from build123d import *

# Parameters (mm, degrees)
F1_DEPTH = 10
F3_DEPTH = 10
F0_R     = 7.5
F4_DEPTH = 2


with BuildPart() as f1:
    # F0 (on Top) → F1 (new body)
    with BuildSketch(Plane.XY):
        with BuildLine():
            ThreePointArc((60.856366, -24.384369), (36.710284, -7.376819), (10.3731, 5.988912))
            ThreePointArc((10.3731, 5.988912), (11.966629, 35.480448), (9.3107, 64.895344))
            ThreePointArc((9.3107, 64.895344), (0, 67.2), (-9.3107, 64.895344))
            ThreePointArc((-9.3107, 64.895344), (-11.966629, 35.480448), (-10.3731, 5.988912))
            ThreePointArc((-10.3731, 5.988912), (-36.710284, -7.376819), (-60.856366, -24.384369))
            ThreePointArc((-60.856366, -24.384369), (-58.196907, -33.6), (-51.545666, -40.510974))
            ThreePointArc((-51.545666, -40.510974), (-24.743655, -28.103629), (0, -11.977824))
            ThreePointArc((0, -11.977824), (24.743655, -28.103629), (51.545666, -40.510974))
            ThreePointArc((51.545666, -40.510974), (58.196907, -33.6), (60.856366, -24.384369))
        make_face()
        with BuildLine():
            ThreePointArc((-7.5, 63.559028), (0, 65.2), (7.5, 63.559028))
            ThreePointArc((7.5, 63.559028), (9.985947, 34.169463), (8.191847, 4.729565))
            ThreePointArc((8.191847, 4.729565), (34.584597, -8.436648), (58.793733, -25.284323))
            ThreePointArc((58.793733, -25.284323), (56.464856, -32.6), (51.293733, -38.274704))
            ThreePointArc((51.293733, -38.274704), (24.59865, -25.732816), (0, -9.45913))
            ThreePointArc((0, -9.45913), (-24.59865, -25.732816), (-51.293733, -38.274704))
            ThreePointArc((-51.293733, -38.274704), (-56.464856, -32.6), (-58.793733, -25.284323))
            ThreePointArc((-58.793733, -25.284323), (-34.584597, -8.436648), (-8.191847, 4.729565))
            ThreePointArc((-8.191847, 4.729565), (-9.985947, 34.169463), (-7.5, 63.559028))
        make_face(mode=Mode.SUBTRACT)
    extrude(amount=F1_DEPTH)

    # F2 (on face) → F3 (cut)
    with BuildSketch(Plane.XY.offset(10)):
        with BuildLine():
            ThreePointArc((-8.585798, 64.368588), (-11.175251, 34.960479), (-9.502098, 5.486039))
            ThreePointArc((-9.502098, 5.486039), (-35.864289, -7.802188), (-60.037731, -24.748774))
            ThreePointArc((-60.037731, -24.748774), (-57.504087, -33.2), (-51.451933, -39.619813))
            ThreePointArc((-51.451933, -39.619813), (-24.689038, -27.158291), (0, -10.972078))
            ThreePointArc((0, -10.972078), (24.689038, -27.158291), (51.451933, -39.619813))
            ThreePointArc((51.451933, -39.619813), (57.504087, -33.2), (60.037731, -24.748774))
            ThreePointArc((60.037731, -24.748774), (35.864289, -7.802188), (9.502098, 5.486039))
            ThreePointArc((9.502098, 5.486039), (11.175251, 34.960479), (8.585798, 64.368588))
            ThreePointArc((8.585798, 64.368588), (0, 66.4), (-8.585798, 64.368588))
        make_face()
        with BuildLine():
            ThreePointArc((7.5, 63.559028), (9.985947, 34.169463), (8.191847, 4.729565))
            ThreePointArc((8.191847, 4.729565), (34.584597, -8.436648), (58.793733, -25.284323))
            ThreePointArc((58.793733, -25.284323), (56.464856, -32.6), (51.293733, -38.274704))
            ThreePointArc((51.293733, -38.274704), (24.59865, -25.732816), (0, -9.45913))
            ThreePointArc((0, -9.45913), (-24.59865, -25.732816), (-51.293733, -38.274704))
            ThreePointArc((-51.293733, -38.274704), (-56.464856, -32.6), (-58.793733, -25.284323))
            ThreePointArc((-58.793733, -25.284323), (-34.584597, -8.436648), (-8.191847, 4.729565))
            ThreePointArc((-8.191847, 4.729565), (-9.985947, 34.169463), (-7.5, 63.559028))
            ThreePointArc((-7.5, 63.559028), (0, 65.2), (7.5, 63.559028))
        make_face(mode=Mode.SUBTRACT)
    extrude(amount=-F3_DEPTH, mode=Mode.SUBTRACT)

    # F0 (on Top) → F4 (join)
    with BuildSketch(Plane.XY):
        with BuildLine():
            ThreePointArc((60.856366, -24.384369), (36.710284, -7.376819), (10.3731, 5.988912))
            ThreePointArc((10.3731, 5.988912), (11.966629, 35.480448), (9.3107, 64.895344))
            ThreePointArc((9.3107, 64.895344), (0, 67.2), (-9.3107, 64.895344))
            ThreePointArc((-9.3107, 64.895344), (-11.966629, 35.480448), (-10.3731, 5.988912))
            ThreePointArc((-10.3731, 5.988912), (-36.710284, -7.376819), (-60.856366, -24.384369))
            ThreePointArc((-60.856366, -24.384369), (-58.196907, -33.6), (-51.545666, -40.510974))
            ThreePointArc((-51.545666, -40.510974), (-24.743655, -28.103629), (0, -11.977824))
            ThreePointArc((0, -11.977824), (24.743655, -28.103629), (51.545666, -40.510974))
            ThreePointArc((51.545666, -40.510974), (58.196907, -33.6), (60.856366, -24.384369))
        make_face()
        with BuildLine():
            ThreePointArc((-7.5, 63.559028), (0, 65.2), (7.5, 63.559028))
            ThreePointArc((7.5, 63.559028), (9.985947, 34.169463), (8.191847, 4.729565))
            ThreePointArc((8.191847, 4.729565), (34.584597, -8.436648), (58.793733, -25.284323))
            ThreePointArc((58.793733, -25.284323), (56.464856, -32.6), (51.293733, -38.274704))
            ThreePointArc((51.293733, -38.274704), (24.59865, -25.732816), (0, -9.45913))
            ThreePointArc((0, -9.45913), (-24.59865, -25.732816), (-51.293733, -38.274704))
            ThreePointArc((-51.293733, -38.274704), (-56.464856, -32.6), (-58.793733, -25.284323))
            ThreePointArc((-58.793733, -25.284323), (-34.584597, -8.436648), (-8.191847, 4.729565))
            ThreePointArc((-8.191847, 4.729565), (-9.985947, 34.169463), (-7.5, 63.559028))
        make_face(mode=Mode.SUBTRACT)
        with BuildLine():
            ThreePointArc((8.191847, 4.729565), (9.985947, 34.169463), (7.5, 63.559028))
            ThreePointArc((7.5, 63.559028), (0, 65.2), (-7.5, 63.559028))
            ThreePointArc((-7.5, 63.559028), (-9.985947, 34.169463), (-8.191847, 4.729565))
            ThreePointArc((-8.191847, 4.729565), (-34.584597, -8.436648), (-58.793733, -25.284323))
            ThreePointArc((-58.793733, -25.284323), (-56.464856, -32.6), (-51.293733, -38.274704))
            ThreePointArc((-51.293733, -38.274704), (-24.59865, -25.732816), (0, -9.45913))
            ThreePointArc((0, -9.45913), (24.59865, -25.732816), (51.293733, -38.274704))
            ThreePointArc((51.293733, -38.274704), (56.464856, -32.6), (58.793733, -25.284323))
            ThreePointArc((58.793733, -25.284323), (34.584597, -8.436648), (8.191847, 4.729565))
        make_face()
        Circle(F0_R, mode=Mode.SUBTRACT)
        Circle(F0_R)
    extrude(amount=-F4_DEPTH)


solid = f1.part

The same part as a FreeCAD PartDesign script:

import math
import FreeCAD as App
import Part
import Sketcher
from FreeCAD import Vector
Q = App.Units.Quantity

doc = App.newDocument("Part")
body = doc.addObject("PartDesign::Body", "Body")

# Sketch on XY plane
sketch1 = body.newObject("Sketcher::SketchObject", "Sketch")
sketch1.AttachmentSupport = (doc.getObject("XY_Plane"), [""])
sketch1.MapMode = "FlatFace"
sketch1.addGeometry(Part.ArcOfCircle(Part.Circle(Vector(-69.096872, -183.238321, 0), Vector(0, 0, 1), 205.237477), math.radians(50.714521), math.radians(67.219001)), False)
sketch1.addGeometry(Part.ArcOfCircle(Part.Circle(Vector(-193.237519, 31.779513, 0), Vector(0, 0, 1), 205.237519), math.radians(-7.218999), math.radians(9.285478)), False)
sketch1.addGeometry(Part.ArcOfCircle(Part.Circle(Vector(0, 47.240281, 0), Vector(0, 0, 1), 19.959719), math.radians(62.194309), math.radians(117.805691)), False)
sketch1.addGeometry(Part.ArcOfCircle(Part.Circle(Vector(193.237519, 31.779513, 0), Vector(0, 0, 1), 205.237519), math.radians(170.714522), math.radians(187.218999)), False)
sketch1.addGeometry(Part.ArcOfCircle(Part.Circle(Vector(69.096872, -183.238321, 0), Vector(0, 0, 1), 205.237477), math.radians(112.780999), math.radians(129.285479)), False)
sketch1.addGeometry(Part.ArcOfCircle(Part.Circle(Vector(-40.911288, -23.620142, 0), Vector(0, 0, 1), 19.959714), math.radians(-177.805697), math.radians(-122.194302)), False)
sketch1.addGeometry(Part.ArcOfCircle(Part.Circle(Vector(-124.140602, 151.458804, 0), Vector(0, 0, 1), 205.237473), math.radians(-69.28548), math.radians(-52.780999)), False)
sketch1.addGeometry(Part.ArcOfCircle(Part.Circle(Vector(124.140602, 151.458804, 0), Vector(0, 0, 1), 205.237473), math.radians(-127.219001), math.radians(-110.71452)), False)
sketch1.addGeometry(Part.ArcOfCircle(Part.Circle(Vector(40.911288, -23.620142, 0), Vector(0, 0, 1), 19.959714), math.radians(-57.805698), math.radians(-2.194303)), False)
sketch1.addGeometry(Part.ArcOfCircle(Part.Circle(Vector(193.237553, 31.779512, 0), Vector(0, 0, 1), 203.237553), math.radians(171.003951), math.radians(187.64849)), False)
sketch1.addGeometry(Part.ArcOfCircle(Part.Circle(Vector(0, 47.240282, 0), Vector(0, 0, 1), 17.959718), math.radians(65.316766), math.radians(114.683234)), False)
sketch1.addGeometry(Part.ArcOfCircle(Part.Circle(Vector(-193.237553, 31.779512, 0), Vector(0, 0, 1), 203.237553), math.radians(-7.64849), math.radians(8.996049)), False)
sketch1.addGeometry(Part.ArcOfCircle(Part.Circle(Vector(-69.096918, -183.238401, 0), Vector(0, 0, 1), 203.237569), math.radians(51.003952), math.radians(67.64849)), False)
sketch1.addGeometry(Part.ArcOfCircle(Part.Circle(Vector(40.911283, -23.62014, 0), Vector(0, 0, 1), 17.959719), math.radians(-54.683232), math.radians(-5.316768)), False)
sketch1.addGeometry(Part.ArcOfCircle(Part.Circle(Vector(124.140607, 151.458817, 0), Vector(0, 0, 1), 203.237487), math.radians(-127.648492), math.radians(-111.003948)), False)
sketch1.addGeometry(Part.ArcOfCircle(Part.Circle(Vector(-124.140607, 151.458817, 0), Vector(0, 0, 1), 203.237487), math.radians(-68.996052), math.radians(-52.351508)), False)
sketch1.addGeometry(Part.ArcOfCircle(Part.Circle(Vector(-40.911283, -23.62014, 0), Vector(0, 0, 1), 17.959719), math.radians(-174.683232), math.radians(-125.316768)), False)
sketch1.addGeometry(Part.ArcOfCircle(Part.Circle(Vector(69.096918, -183.238401, 0), Vector(0, 0, 1), 203.237569), math.radians(112.35151), math.radians(128.996048)), False)
sketch1.addConstraint(Sketcher.Constraint("Coincident", 0, 2, 1, 1))
sketch1.addConstraint(Sketcher.Constraint("Coincident", 1, 2, 2, 1))
sketch1.addConstraint(Sketcher.Constraint("Coincident", 2, 2, 3, 1))
sketch1.addConstraint(Sketcher.Constraint("Coincident", 3, 2, 4, 1))
sketch1.addConstraint(Sketcher.Constraint("Coincident", 4, 2, 5, 1))
sketch1.addConstraint(Sketcher.Constraint("Coincident", 5, 2, 6, 1))
sketch1.addConstraint(Sketcher.Constraint("Coincident", 6, 2, 7, 1))
sketch1.addConstraint(Sketcher.Constraint("Coincident", 7, 2, 8, 1))
sketch1.addConstraint(Sketcher.Constraint("Coincident", 8, 2, 0, 1))
sketch1.addConstraint(Sketcher.Constraint("Coincident", 9, 1, 10, 2))
sketch1.addConstraint(Sketcher.Constraint("Coincident", 10, 1, 11, 2))
sketch1.addConstraint(Sketcher.Constraint("Coincident", 11, 1, 12, 2))
sketch1.addConstraint(Sketcher.Constraint("Coincident", 12, 1, 13, 2))
sketch1.addConstraint(Sketcher.Constraint("Coincident", 13, 1, 14, 2))
sketch1.addConstraint(Sketcher.Constraint("Coincident", 14, 1, 15, 2))
sketch1.addConstraint(Sketcher.Constraint("Coincident", 15, 1, 16, 2))
sketch1.addConstraint(Sketcher.Constraint("Coincident", 16, 1, 17, 2))
sketch1.addConstraint(Sketcher.Constraint("Coincident", 17, 1, 9, 2))
sketch1.addConstraint(Sketcher.Constraint("Coincident", 10, 3, 2, 3))
sketch1.addConstraint(Sketcher.Constraint("Coincident", 13, 3, 8, 3))
sketch1.addConstraint(Sketcher.Constraint("Coincident", 16, 3, 5, 3))
sketch1.addConstraint(Sketcher.Constraint("Equal", 1, 3))
sketch1.addConstraint(Sketcher.Constraint("Equal", 0, 4))
sketch1.addConstraint(Sketcher.Constraint("Equal", 6, 7))
sketch1.addConstraint(Sketcher.Constraint("Equal", 5, 8))
sketch1.addConstraint(Sketcher.Constraint("Equal", 9, 11))
sketch1.addConstraint(Sketcher.Constraint("Equal", 10, 13))
sketch1.addConstraint(Sketcher.Constraint("Equal", 14, 15))
sketch1.addConstraint(Sketcher.Constraint("Equal", 13, 16))
sketch1.addConstraint(Sketcher.Constraint("Equal", 12, 17))
sketch1.addConstraint(Sketcher.Constraint("Symmetric", 1, 3, 3, 3, -2))
sketch1.addConstraint(Sketcher.Constraint("Symmetric", 0, 3, 4, 3, -2))
sketch1.addConstraint(Sketcher.Constraint("Symmetric", 6, 3, 7, 3, -2))
sketch1.addConstraint(Sketcher.Constraint("Symmetric", 5, 3, 8, 3, -2))
sketch1.addConstraint(Sketcher.Constraint("Symmetric", 9, 3, 11, 3, -2))
sketch1.addConstraint(Sketcher.Constraint("Symmetric", 14, 3, 15, 3, -2))
sketch1.addConstraint(Sketcher.Constraint("Symmetric", 12, 3, 17, 3, -2))
sketch1.addConstraint(Sketcher.Constraint("PointOnObject", 2, 3, -2))
sketch1.addConstraint(Sketcher.Constraint("Horizontal", 3, 3, 9, 3))
sketch1.addConstraint(Sketcher.Constraint("DistanceX", 9, 1, 10, 1, Q("15 mm")))
sketch1.addConstraint(Sketcher.Constraint("DistanceX", 13, 1, 12, 1, Q("7.5 mm")))
sketch1.addConstraint(Sketcher.Constraint("Radius", 1, Q("205.237519 mm")))
sketch1.addConstraint(Sketcher.Constraint("Radius", 2, Q("19.959719 mm")))
sketch1.addConstraint(Sketcher.Constraint("Radius", 10, Q("17.959718 mm")))
sketch1.addConstraint(Sketcher.Constraint("Radius", 12, Q("203.237569 mm")))
sketch1.addConstraint(Sketcher.Constraint("Radius", 0, Q("205.237477 mm")))
sketch1.addConstraint(Sketcher.Constraint("Radius", 5, Q("19.959714 mm")))
sketch1.addConstraint(Sketcher.Constraint("Radius", 6, Q("205.237473 mm")))
sketch1.addConstraint(Sketcher.Constraint("Radius", 9, Q("203.237553 mm")))
sketch1.addConstraint(Sketcher.Constraint("Radius", 14, Q("203.237487 mm")))
sketch1.addConstraint(Sketcher.Constraint("DistanceX", 6, 3, -1, 1, Q("124.140602 mm")))
sketch1.addConstraint(Sketcher.Constraint("DistanceY", 12, 3, -1, 1, Q("183.238401 mm")))
sketch1.addConstraint(Sketcher.Constraint("DistanceX", -1, 1, 0, 2, Q("10.3731 mm")))
sketch1.addConstraint(Sketcher.Constraint("DistanceX", -1, 1, 1, 2, Q("9.3107 mm")))
sketch1.addConstraint(Sketcher.Constraint("DistanceY", 0, 3, 2, 3, Q("230.478601 mm")))
sketch1.addConstraint(Sketcher.Constraint("DistanceX", 4, 2, 5, 2, Q("9.3107 mm")))
sketch1.addConstraint(Sketcher.Constraint("DistanceY", 0, 3, -1, 1, Q("183.238321 mm")))
sketch1.addConstraint(Sketcher.Constraint("DistanceX", 1, 3, -1, 1, Q("193.237519 mm")))
sketch1.addConstraint(Sketcher.Constraint("DistanceX", 12, 3, -1, 1, Q("69.096918 mm")))
sketch1.addConstraint(Sketcher.Constraint("DistanceY", 13, 3, -1, 1, Q("23.62014 mm")))
sketch1.addConstraint(Sketcher.Constraint("DistanceY", 4, 2, -1, 1, Q("24.384369 mm")))
sketch1.addConstraint(Sketcher.Constraint("DistanceY", 14, 1, -1, 1, Q("9.45913 mm")))
pad1 = body.newObject("PartDesign::Pad", "Pad")
pad1.Profile = sketch1
pad1.Length = 10

# Sketch on XY plane
sketch2 = body.newObject("Sketcher::SketchObject", "Sketch001")
sketch2.AttachmentSupport = (doc.getObject("XY_Plane"), [""])
sketch2.MapMode = "FlatFace"
sketch2.AttachmentOffset = App.Placement(Vector(0, 0, 10), App.Rotation())
sketch2.addGeometry(Part.ArcOfCircle(Part.Circle(Vector(193.237519, 31.779513, 0), Vector(0, 0, 1), 204.437519), math.radians(170.827436), math.radians(187.389493)), False)
sketch2.addGeometry(Part.ArcOfCircle(Part.Circle(Vector(69.096883, -183.23834, 0), Vector(0, 0, 1), 204.437499), math.radians(112.610506), math.radians(129.172565)), False)
sketch2.addGeometry(Part.ArcOfCircle(Part.Circle(Vector(-40.911289, -23.620144, 0), Vector(0, 0, 1), 19.159713), math.radians(-176.622956), math.radians(-123.377047)), False)
sketch2.addGeometry(Part.ArcOfCircle(Part.Circle(Vector(-124.140633, 151.458861, 0), Vector(0, 0, 1), 204.437537), math.radians(-69.172564), math.radians(-52.610508)), False)
sketch2.addGeometry(Part.ArcOfCircle(Part.Circle(Vector(124.140633, 151.458861, 0), Vector(0, 0, 1), 204.437537), math.radians(-127.389492), math.radians(-110.827436)), False)
sketch2.addGeometry(Part.ArcOfCircle(Part.Circle(Vector(40.911289, -23.620144, 0), Vector(0, 0, 1), 19.159713), math.radians(-56.622953), math.radians(-3.377044)), False)
sketch2.addGeometry(Part.ArcOfCircle(Part.Circle(Vector(-69.096883, -183.23834, 0), Vector(0, 0, 1), 204.437499), math.radians(50.827435), math.radians(67.389494)), False)
sketch2.addGeometry(Part.ArcOfCircle(Part.Circle(Vector(-193.237519, 31.779513, 0), Vector(0, 0, 1), 204.437519), math.radians(-7.389493), math.radians(9.172564)), False)
sketch2.addGeometry(Part.ArcOfCircle(Part.Circle(Vector(0, 47.240282, 0), Vector(0, 0, 1), 19.159718), math.radians(63.377054), math.radians(116.622946)), False)
sketch2.addGeometry(Part.ArcOfCircle(Part.Circle(Vector(0, 47.240282, 0), Vector(0, 0, 1), 17.959718), math.radians(65.316766), math.radians(114.683234)), False)
sketch2.addGeometry(Part.ArcOfCircle(Part.Circle(Vector(-193.237553, 31.779512, 0), Vector(0, 0, 1), 203.237553), math.radians(-7.64849), math.radians(8.996049)), False)
sketch2.addGeometry(Part.ArcOfCircle(Part.Circle(Vector(-69.096918, -183.238401, 0), Vector(0, 0, 1), 203.237569), math.radians(51.003952), math.radians(67.64849)), False)
sketch2.addGeometry(Part.ArcOfCircle(Part.Circle(Vector(40.911283, -23.62014, 0), Vector(0, 0, 1), 17.959719), math.radians(-54.683232), math.radians(-5.316768)), False)
sketch2.addGeometry(Part.ArcOfCircle(Part.Circle(Vector(124.140607, 151.458817, 0), Vector(0, 0, 1), 203.237487), math.radians(-127.648492), math.radians(-111.003948)), False)
sketch2.addGeometry(Part.ArcOfCircle(Part.Circle(Vector(-124.140607, 151.458817, 0), Vector(0, 0, 1), 203.237487), math.radians(-68.996052), math.radians(-52.351508)), False)
sketch2.addGeometry(Part.ArcOfCircle(Part.Circle(Vector(-40.911283, -23.62014, 0), Vector(0, 0, 1), 17.959719), math.radians(-174.683232), math.radians(-125.316768)), False)
sketch2.addGeometry(Part.ArcOfCircle(Part.Circle(Vector(69.096918, -183.238401, 0), Vector(0, 0, 1), 203.237569), math.radians(112.35151), math.radians(128.996048)), False)
sketch2.addGeometry(Part.ArcOfCircle(Part.Circle(Vector(193.237553, 31.779512, 0), Vector(0, 0, 1), 203.237553), math.radians(171.003951), math.radians(187.64849)), False)
sketch2.addConstraint(Sketcher.Constraint("Coincident", 0, 2, 1, 1))
sketch2.addConstraint(Sketcher.Constraint("Coincident", 1, 2, 2, 1))
sketch2.addConstraint(Sketcher.Constraint("Coincident", 2, 2, 3, 1))
sketch2.addConstraint(Sketcher.Constraint("Coincident", 3, 2, 4, 1))
sketch2.addConstraint(Sketcher.Constraint("Coincident", 4, 2, 5, 1))
sketch2.addConstraint(Sketcher.Constraint("Coincident", 5, 2, 6, 1))
sketch2.addConstraint(Sketcher.Constraint("Coincident", 6, 2, 7, 1))
sketch2.addConstraint(Sketcher.Constraint("Coincident", 7, 2, 8, 1))
sketch2.addConstraint(Sketcher.Constraint("Coincident", 8, 2, 0, 1))
sketch2.addConstraint(Sketcher.Constraint("Coincident", 9, 1, 10, 2))
sketch2.addConstraint(Sketcher.Constraint("Coincident", 10, 1, 11, 2))
sketch2.addConstraint(Sketcher.Constraint("Coincident", 11, 1, 12, 2))
sketch2.addConstraint(Sketcher.Constraint("Coincident", 12, 1, 13, 2))
sketch2.addConstraint(Sketcher.Constraint("Coincident", 13, 1, 14, 2))
sketch2.addConstraint(Sketcher.Constraint("Coincident", 14, 1, 15, 2))
sketch2.addConstraint(Sketcher.Constraint("Coincident", 15, 1, 16, 2))
sketch2.addConstraint(Sketcher.Constraint("Coincident", 16, 1, 17, 2))
sketch2.addConstraint(Sketcher.Constraint("Coincident", 17, 1, 9, 2))
sketch2.addConstraint(Sketcher.Constraint("Coincident", 9, 3, 8, 3))
sketch2.addConstraint(Sketcher.Constraint("Coincident", 12, 3, 5, 3))
sketch2.addConstraint(Sketcher.Constraint("Coincident", 15, 3, 2, 3))
sketch2.addConstraint(Sketcher.Constraint("Equal", 3, 4))
sketch2.addConstraint(Sketcher.Constraint("Equal", 2, 5))
sketch2.addConstraint(Sketcher.Constraint("Equal", 1, 6))
sketch2.addConstraint(Sketcher.Constraint("Equal", 0, 7))
sketch2.addConstraint(Sketcher.Constraint("Equal", 9, 12))
sketch2.addConstraint(Sketcher.Constraint("Equal", 13, 14))
sketch2.addConstraint(Sketcher.Constraint("Equal", 12, 15))
sketch2.addConstraint(Sketcher.Constraint("Equal", 11, 16))
sketch2.addConstraint(Sketcher.Constraint("Equal", 10, 17))
sketch2.addConstraint(Sketcher.Constraint("Symmetric", 3, 3, 4, 3, -2))
sketch2.addConstraint(Sketcher.Constraint("Symmetric", 2, 3, 5, 3, -2))
sketch2.addConstraint(Sketcher.Constraint("Symmetric", 1, 3, 6, 3, -2))
sketch2.addConstraint(Sketcher.Constraint("Symmetric", 0, 3, 7, 3, -2))
sketch2.addConstraint(Sketcher.Constraint("Symmetric", 13, 3, 14, 3, -2))
sketch2.addConstraint(Sketcher.Constraint("Symmetric", 11, 3, 16, 3, -2))
sketch2.addConstraint(Sketcher.Constraint("Symmetric", 10, 3, 17, 3, -2))
sketch2.addConstraint(Sketcher.Constraint("PointOnObject", 8, 3, -2))
sketch2.addConstraint(Sketcher.Constraint("Horizontal", 7, 3, 10, 3))
sketch2.addConstraint(Sketcher.Constraint("DistanceX", 17, 1, 9, 1, Q("15 mm")))
sketch2.addConstraint(Sketcher.Constraint("Radius", 1, Q("204.437499 mm")))
sketch2.addConstraint(Sketcher.Constraint("DistanceX", 12, 1, 11, 1, Q("7.5 mm")))
sketch2.addConstraint(Sketcher.Constraint("Radius", 0, Q("204.437519 mm")))
sketch2.addConstraint(Sketcher.Constraint("Radius", 9, Q("17.959718 mm")))
sketch2.addConstraint(Sketcher.Constraint("Radius", 11, Q("203.237569 mm")))
sketch2.addConstraint(Sketcher.Constraint("Radius", 2, Q("19.159713 mm")))
sketch2.addConstraint(Sketcher.Constraint("Radius", 3, Q("204.437537 mm")))
sketch2.addConstraint(Sketcher.Constraint("Radius", 8, Q("19.159718 mm")))
sketch2.addConstraint(Sketcher.Constraint("Radius", 10, Q("203.237553 mm")))
sketch2.addConstraint(Sketcher.Constraint("Radius", 13, Q("203.237487 mm")))
sketch2.addConstraint(Sketcher.Constraint("DistanceY", 11, 3, -1, 1, Q("183.238401 mm")))
sketch2.addConstraint(Sketcher.Constraint("DistanceX", 0, 2, -1, 1, Q("9.502098 mm")))
sketch2.addConstraint(Sketcher.Constraint("DistanceX", -1, 1, 7, 2, Q("8.585798 mm")))
sketch2.addConstraint(Sketcher.Constraint("DistanceY", 1, 3, 3, 3, Q("334.6972 mm")))
sketch2.addConstraint(Sketcher.Constraint("DistanceX", 6, 3, 0, 3, Q("262.334402 mm")))
sketch2.addConstraint(Sketcher.Constraint("DistanceX", 11, 3, 1, 3, Q("138.193801 mm")))
sketch2.addConstraint(Sketcher.Constraint("DistanceX", 12, 3, 1, 3, Q("28.185599 mm")))
sketch2.addConstraint(Sketcher.Constraint("DistanceY", 1, 3, 12, 3, Q("159.6182 mm")))
sketch2.addConstraint(Sketcher.Constraint("DistanceX", 15, 1, 2, 2, Q("7.3418 mm")))
sketch2.addConstraint(Sketcher.Constraint("DistanceX", -1, 1, 0, 3, Q("193.237519 mm")))
sketch2.addConstraint(Sketcher.Constraint("DistanceY", 1, 3, -1, 1, Q("183.23834 mm")))
sketch2.addConstraint(Sketcher.Constraint("DistanceY", 13, 1, -1, 1, Q("9.45913 mm")))
pocket1 = body.newObject("PartDesign::Pocket", "Pocket")
pocket1.Profile = sketch2
pocket1.Length = 10

# Sketch on XY plane
sketch3 = body.newObject("Sketcher::SketchObject", "Sketch002")
sketch3.AttachmentSupport = (doc.getObject("XY_Plane"), [""])
sketch3.MapMode = "FlatFace"
sketch3.addGeometry(Part.ArcOfCircle(Part.Circle(Vector(-69.096872, -183.238321, 0), Vector(0, 0, 1), 205.237477), math.radians(50.714521), math.radians(67.219001)), False)
sketch3.addGeometry(Part.ArcOfCircle(Part.Circle(Vector(-193.237519, 31.779513, 0), Vector(0, 0, 1), 205.237519), math.radians(-7.218999), math.radians(9.285478)), False)
sketch3.addGeometry(Part.ArcOfCircle(Part.Circle(Vector(0, 47.240281, 0), Vector(0, 0, 1), 19.959719), math.radians(62.194309), math.radians(117.805691)), False)
sketch3.addGeometry(Part.ArcOfCircle(Part.Circle(Vector(193.237519, 31.779513, 0), Vector(0, 0, 1), 205.237519), math.radians(170.714522), math.radians(187.218999)), False)
sketch3.addGeometry(Part.ArcOfCircle(Part.Circle(Vector(69.096872, -183.238321, 0), Vector(0, 0, 1), 205.237477), math.radians(112.780999), math.radians(129.285479)), False)
sketch3.addGeometry(Part.ArcOfCircle(Part.Circle(Vector(-40.911288, -23.620142, 0), Vector(0, 0, 1), 19.959714), math.radians(-177.805697), math.radians(-122.194302)), False)
sketch3.addGeometry(Part.ArcOfCircle(Part.Circle(Vector(-124.140602, 151.458804, 0), Vector(0, 0, 1), 205.237473), math.radians(-69.28548), math.radians(-52.780999)), False)
sketch3.addGeometry(Part.ArcOfCircle(Part.Circle(Vector(124.140602, 151.458804, 0), Vector(0, 0, 1), 205.237473), math.radians(-127.219001), math.radians(-110.71452)), False)
sketch3.addGeometry(Part.ArcOfCircle(Part.Circle(Vector(40.911288, -23.620142, 0), Vector(0, 0, 1), 19.959714), math.radians(-57.805698), math.radians(-2.194303)), False)
sketch3.addConstraint(Sketcher.Constraint("Coincident", 0, 2, 1, 1))
sketch3.addConstraint(Sketcher.Constraint("Coincident", 1, 2, 2, 1))
sketch3.addConstraint(Sketcher.Constraint("Coincident", 2, 2, 3, 1))
sketch3.addConstraint(Sketcher.Constraint("Coincident", 3, 2, 4, 1))
sketch3.addConstraint(Sketcher.Constraint("Coincident", 4, 2, 5, 1))
sketch3.addConstraint(Sketcher.Constraint("Coincident", 5, 2, 6, 1))
sketch3.addConstraint(Sketcher.Constraint("Coincident", 6, 2, 7, 1))
sketch3.addConstraint(Sketcher.Constraint("Coincident", 7, 2, 8, 1))
sketch3.addConstraint(Sketcher.Constraint("Coincident", 8, 2, 0, 1))
sketch3.addConstraint(Sketcher.Constraint("Equal", 1, 3))
sketch3.addConstraint(Sketcher.Constraint("Equal", 0, 4))
sketch3.addConstraint(Sketcher.Constraint("Equal", 6, 7))
sketch3.addConstraint(Sketcher.Constraint("Equal", 5, 8))
sketch3.addConstraint(Sketcher.Constraint("Symmetric", 1, 3, 3, 3, -2))
sketch3.addConstraint(Sketcher.Constraint("Symmetric", 0, 3, 4, 3, -2))
sketch3.addConstraint(Sketcher.Constraint("Symmetric", 6, 3, 7, 3, -2))
sketch3.addConstraint(Sketcher.Constraint("Symmetric", 5, 3, 8, 3, -2))
sketch3.addConstraint(Sketcher.Constraint("PointOnObject", 2, 3, -2))
sketch3.addConstraint(Sketcher.Constraint("Radius", 1, Q("205.237519 mm")))
sketch3.addConstraint(Sketcher.Constraint("Radius", 2, Q("19.959719 mm")))
sketch3.addConstraint(Sketcher.Constraint("Radius", 0, Q("205.237477 mm")))
sketch3.addConstraint(Sketcher.Constraint("Radius", 5, Q("19.959714 mm")))
sketch3.addConstraint(Sketcher.Constraint("Radius", 6, Q("205.237473 mm")))
sketch3.addConstraint(Sketcher.Constraint("DistanceX", 6, 3, -1, 1, Q("124.140602 mm")))
sketch3.addConstraint(Sketcher.Constraint("DistanceX", -1, 1, 0, 2, Q("10.3731 mm")))
sketch3.addConstraint(Sketcher.Constraint("DistanceX", -1, 1, 1, 2, Q("9.3107 mm")))
sketch3.addConstraint(Sketcher.Constraint("DistanceY", 0, 3, 2, 3, Q("230.478601 mm")))
sketch3.addConstraint(Sketcher.Constraint("DistanceY", 0, 2, 3, 3, Q("25.790601 mm")))
sketch3.addConstraint(Sketcher.Constraint("DistanceX", 4, 2, 5, 2, Q("9.3107 mm")))
sketch3.addConstraint(Sketcher.Constraint("DistanceY", 0, 3, -1, 1, Q("183.238321 mm")))
sketch3.addConstraint(Sketcher.Constraint("DistanceY", 4, 2, -1, 1, Q("24.384369 mm")))
sketch3.addConstraint(Sketcher.Constraint("DistanceY", 0, 3, 5, 3, Q("159.618178 mm")))
pad2 = body.newObject("PartDesign::Pad", "Pad001")
pad2.Profile = sketch3
pad2.Length = 2
pad2.Reversed = True

doc.recompute()
